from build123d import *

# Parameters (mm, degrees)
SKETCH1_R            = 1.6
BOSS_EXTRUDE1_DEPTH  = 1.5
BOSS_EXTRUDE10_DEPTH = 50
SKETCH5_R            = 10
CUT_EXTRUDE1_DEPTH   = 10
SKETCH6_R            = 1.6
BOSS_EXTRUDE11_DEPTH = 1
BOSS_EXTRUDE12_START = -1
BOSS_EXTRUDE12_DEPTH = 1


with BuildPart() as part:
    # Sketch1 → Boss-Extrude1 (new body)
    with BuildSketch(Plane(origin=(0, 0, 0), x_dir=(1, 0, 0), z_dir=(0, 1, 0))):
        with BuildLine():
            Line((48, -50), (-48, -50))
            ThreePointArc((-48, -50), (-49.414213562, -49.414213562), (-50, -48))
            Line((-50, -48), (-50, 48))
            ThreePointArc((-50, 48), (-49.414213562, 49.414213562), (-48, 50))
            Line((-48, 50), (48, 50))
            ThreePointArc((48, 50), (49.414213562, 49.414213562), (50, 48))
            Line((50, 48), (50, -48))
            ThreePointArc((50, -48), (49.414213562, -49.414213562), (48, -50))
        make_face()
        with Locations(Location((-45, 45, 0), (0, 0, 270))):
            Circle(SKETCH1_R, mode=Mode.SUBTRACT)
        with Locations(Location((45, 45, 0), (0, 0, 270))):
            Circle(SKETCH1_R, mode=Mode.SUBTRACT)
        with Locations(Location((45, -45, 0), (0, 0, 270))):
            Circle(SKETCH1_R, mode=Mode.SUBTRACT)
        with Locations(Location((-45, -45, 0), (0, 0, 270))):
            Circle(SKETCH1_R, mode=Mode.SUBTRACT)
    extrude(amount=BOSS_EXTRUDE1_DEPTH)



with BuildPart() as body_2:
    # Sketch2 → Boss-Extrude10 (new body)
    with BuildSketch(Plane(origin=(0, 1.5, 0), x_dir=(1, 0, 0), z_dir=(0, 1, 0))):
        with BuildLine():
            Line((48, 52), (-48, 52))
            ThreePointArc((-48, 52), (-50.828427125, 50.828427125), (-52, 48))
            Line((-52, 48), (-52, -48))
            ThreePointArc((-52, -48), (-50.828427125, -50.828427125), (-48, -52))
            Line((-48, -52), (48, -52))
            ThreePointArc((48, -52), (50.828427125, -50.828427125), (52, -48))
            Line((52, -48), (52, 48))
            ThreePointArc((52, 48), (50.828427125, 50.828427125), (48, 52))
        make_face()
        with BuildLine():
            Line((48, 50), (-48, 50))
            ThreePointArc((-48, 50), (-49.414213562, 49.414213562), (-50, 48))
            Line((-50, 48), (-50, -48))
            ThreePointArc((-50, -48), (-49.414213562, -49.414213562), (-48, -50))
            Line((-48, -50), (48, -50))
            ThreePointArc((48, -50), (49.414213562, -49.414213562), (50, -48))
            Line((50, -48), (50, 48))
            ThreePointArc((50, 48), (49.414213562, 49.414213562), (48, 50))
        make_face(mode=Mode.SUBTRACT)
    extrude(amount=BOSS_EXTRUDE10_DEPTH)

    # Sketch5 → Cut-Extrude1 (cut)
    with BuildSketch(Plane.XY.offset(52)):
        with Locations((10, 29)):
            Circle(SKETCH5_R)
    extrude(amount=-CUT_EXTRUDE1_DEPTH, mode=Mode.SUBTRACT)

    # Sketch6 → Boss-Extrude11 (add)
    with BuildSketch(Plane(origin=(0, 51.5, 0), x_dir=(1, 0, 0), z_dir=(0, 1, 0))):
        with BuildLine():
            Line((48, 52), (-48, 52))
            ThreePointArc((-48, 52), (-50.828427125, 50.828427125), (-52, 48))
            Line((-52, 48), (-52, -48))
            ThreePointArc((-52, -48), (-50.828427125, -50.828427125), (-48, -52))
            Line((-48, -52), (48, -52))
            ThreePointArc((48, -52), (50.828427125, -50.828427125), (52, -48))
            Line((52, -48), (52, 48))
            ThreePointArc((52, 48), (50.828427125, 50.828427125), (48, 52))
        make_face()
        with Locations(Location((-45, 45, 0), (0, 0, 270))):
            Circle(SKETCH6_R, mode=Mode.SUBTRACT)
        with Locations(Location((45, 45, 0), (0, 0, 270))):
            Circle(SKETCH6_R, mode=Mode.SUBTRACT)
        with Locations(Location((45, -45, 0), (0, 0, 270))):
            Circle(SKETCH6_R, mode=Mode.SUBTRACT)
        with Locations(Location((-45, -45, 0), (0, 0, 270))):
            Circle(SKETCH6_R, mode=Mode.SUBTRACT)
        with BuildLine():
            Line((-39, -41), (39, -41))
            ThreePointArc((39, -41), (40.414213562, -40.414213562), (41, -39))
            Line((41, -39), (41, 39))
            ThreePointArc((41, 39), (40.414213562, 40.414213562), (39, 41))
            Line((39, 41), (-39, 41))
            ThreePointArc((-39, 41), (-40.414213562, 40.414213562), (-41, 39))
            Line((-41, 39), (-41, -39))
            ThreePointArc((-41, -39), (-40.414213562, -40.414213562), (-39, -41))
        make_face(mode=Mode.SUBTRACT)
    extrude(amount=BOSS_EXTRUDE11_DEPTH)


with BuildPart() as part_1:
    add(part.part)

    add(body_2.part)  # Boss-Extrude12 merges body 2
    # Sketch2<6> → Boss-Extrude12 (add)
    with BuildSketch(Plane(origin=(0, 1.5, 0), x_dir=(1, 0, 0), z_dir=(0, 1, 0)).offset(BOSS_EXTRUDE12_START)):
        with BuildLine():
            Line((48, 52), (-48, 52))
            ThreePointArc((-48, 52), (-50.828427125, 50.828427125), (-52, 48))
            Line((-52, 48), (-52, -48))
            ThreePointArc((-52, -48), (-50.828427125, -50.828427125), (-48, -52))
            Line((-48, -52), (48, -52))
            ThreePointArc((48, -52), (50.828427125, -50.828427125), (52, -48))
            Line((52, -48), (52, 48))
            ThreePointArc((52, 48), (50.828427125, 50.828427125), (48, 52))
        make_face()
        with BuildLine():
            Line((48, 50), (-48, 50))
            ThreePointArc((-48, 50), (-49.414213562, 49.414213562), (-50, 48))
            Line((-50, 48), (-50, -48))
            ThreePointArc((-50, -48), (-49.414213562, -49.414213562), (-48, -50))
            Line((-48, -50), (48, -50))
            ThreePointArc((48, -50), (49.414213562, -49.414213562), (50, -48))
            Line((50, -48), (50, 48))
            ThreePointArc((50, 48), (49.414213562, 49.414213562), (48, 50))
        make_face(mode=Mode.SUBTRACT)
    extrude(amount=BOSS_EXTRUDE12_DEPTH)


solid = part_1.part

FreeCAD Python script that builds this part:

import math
import FreeCAD as App
import Part
import Sketcher

V = App.Vector
Q = App.Units.Quantity

doc = App.newDocument("Part")
body = doc.addObject("PartDesign::Body", "Body")

sketch1 = body.newObject("Sketcher::SketchObject", "Sketch")
sketch1.AttachmentSupport = (doc.getObject("XZ_Plane"), [""])
sketch1.MapMode = "FlatFace"
sketch1.addGeometry(Part.LineSegment(V(-48, 50, 0), V(48, 50, 0)), False)
sketch1.addGeometry(Part.ArcOfCircle(Part.Circle(V(48, 48, 0), V(0, 0, 1), 2), math.radians(0), math.radians(90)), False)
sketch1.addGeometry(Part.LineSegment(V(50, 48, 0), V(50, -48, 0)), False)
sketch1.addGeometry(Part.ArcOfCircle(Part.Circle(V(48, -48, 0), V(0, 0, 1), 2), math.radians(-90), math.radians(0)), False)
sketch1.addGeometry(Part.LineSegment(V(48, -50, 0), V(-48, -50, 0)), False)
sketch1.addGeometry(Part.ArcOfCircle(Part.Circle(V(-48, -48, 0), V(0, 0, 1), 2), math.radians(-180), math.radians(-90)), False)
sketch1.addGeometry(Part.LineSegment(V(-50, -48, 0), V(-50, 48, 0)), False)
sketch1.addGeometry(Part.ArcOfCircle(Part.Circle(V(-48, 48, 0), V(0, 0, 1), 2), math.radians(90), math.radians(180)), False)
sketch1.addGeometry(Part.Circle(V(45, 45, 0), V(0, 0, 1), 1.6), False)
sketch1.addGeometry(Part.Circle(V(-45, 45, 0), V(0, 0, 1), 1.6), False)
sketch1.addGeometry(Part.Circle(V(45, -45, 0), V(0, 0, 1), 1.6), False)
sketch1.addGeometry(Part.Circle(V(-45, -45, 0), V(0, 0, 1), 1.6), False)
sketch1.addConstraint(Sketcher.Constraint("Tangent", 0, 2, 1, 2))
sketch1.addConstraint(Sketcher.Constraint("Tangent", 1, 1, 2, 1))
sketch1.addConstraint(Sketcher.Constraint("Tangent", 2, 2, 3, 2))
sketch1.addConstraint(Sketcher.Constraint("Tangent", 3, 1, 4, 1))
sketch1.addConstraint(Sketcher.Constraint("Tangent", 4, 2, 5, 2))
sketch1.addConstraint(Sketcher.Constraint("Tangent", 5, 1, 6, 1))
sketch1.addConstraint(Sketcher.Constraint("Tangent", 6, 2, 7, 2))
sketch1.addConstraint(Sketcher.Constraint("Tangent", 7, 1, 0, 1))
sketch1.addConstraint(Sketcher.Constraint("Horizontal", 0))
sketch1.addConstraint(Sketcher.Constraint("Vertical", 2))
sketch1.addConstraint(Sketcher.Constraint("Horizontal", 4))
sketch1.addConstraint(Sketcher.Constraint("Vertical", 6))
sketch1.addConstraint(Sketcher.Constraint("Equal", 1, 3))
sketch1.addConstraint(Sketcher.Constraint("Equal", 3, 5))
sketch1.addConstraint(Sketcher.Constraint("Equal", 5, 7))
sketch1.addConstraint(Sketcher.Constraint("Equal", 8, 9))
sketch1.addConstraint(Sketcher.Constraint("Equal", 9, 10))
sketch1.addConstraint(Sketcher.Constraint("Equal", 10, 11))
sketch1.addConstraint(Sketcher.Constraint("Symmetric", 1, 3, 5, 3, -1, 1))
sketch1.addConstraint(Sketcher.Constraint("Symmetric", 9, 3, 10, 3, -1, 1))
sketch1.addConstraint(Sketcher.Constraint("Symmetric", 8, 3, 11, 3, -1, 1))
sketch1.addConstraint(Sketcher.Constraint("Symmetric", 8, 3, 9, 3, -2))
sketch1.addConstraint(Sketcher.Constraint("Equal", 4, 2))
sketch1.addConstraint(Sketcher.Constraint("Radius", 1, Q("2 mm")))
sketch1.addConstraint(Sketcher.Constraint("Diameter", 8, Q("3.2 mm")))
sketch1.addConstraint(Sketcher.Constraint("DistanceX", 0, 1, 0, 2, Q("96 mm")))
sketch1.addConstraint(Sketcher.Constraint("DistanceX", -1, 1, 8, 3, Q("45 mm")))
sketch1.addConstraint(Sketcher.Constraint("DistanceY", -1, 1, 8, 3, Q("45 mm")))
pad1 = body.newObject("PartDesign::Pad", "Pad")
pad1.Profile = sketch1
pad1.Length = 1.5
pad1.Reversed = True
body2 = doc.addObject("PartDesign::Body", "Body001")

sketch2 = body2.newObject("Sketcher::SketchObject", "Sketch001")
sketch2.AttachmentSupport = (doc.getObject("XZ_Plane001"), [""])
sketch2.MapMode = "FlatFace"
sketch2.AttachmentOffset = App.Placement(V(0, 0, -1.5), App.Rotation())
sketch2.addGeometry(Part.LineSegment(V(48, -52, 0), V(-48, -52, 0)), False)
sketch2.addGeometry(Part.ArcOfCircle(Part.Circle(V(-48, -48, 0), V(0, 0, 1), 4), math.radians(180), math.radians(270)), False)
sketch2.addGeometry(Part.LineSegment(V(-52, -48, 0), V(-52, 48, 0)), False)
sketch2.addGeometry(Part.ArcOfCircle(Part.Circle(V(-48, 48, 0), V(0, 0, 1), 4), math.radians(90), math.radians(180)), False)
sketch2.addGeometry(Part.LineSegment(V(-48, 52, 0), V(48, 52, 0)), False)
sketch2.addGeometry(Part.ArcOfCircle(Part.Circle(V(48, 48, 0), V(0, 0, 1), 4), math.radians(0), math.radians(90)), False)
sketch2.addGeometry(Part.LineSegment(V(52, 48, 0), V(52, -48, 0)), False)
sketch2.addGeometry(Part.ArcOfCircle(Part.Circle(V(48, -48, 0), V(0, 0, 1), 4), math.radians(-90), math.radians(0)), False)
sketch2.addGeometry(Part.LineSegment(V(-48, -50, 0), V(48, -50, 0)), False)
sketch2.addGeometry(Part.ArcOfCircle(Part.Circle(V(48, -48, 0), V(0, 0, 1), 2), math.radians(-90), math.radians(0)), False)
sketch2.addGeometry(Part.LineSegment(V(50, -48, 0), V(50, 48, 0)), False)
sketch2.addGeometry(Part.ArcOfCircle(Part.Circle(V(48, 48, 0), V(0, 0, 1), 2), math.radians(0), math.radians(90)), False)
sketch2.addGeometry(Part.LineSegment(V(48, 50, 0), V(-48, 50, 0)), False)
sketch2.addGeometry(Part.ArcOfCircle(Part.Circle(V(-48, 48, 0), V(0, 0, 1), 2), math.radians(90), math.radians(180)), False)
sketch2.addGeometry(Part.LineSegment(V(-50, 48, 0), V(-50, -48, 0)), False)
sketch2.addGeometry(Part.ArcOfCircle(Part.Circle(V(-48, -48, 0), V(0, 0, 1), 2), math.radians(-180), math.radians(-90)), False)
sketch2.addConstraint(Sketcher.Constraint("Tangent", 0, 2, 1, 2))
sketch2.addConstraint(Sketcher.Constraint("Tangent", 1, 1, 2, 1))
sketch2.addConstraint(Sketcher.Constraint("Tangent", 2, 2, 3, 2))
sketch2.addConstraint(Sketcher.Constraint("Tangent", 3, 1, 4, 1))
sketch2.addConstraint(Sketcher.Constraint("Tangent", 4, 2, 5, 2))
sketch2.addConstraint(Sketcher.Constraint("Tangent", 5, 1, 6, 1))
sketch2.addConstraint(Sketcher.Constraint("Tangent", 6, 2, 7, 2))
sketch2.addConstraint(Sketcher.Constraint("Tangent", 7, 1, 0, 1))
sketch2.addConstraint(Sketcher.Constraint("Tangent", 8, 2, 9, 1))
sketch2.addConstraint(Sketcher.Constraint("Tangent", 9, 2, 10, 1))
sketch2.addConstraint(Sketcher.Constraint("Tangent", 10, 2, 11, 1))
sketch2.addConstraint(Sketcher.Constraint("Tangent", 11, 2, 12, 1))
sketch2.addConstraint(Sketcher.Constraint("Tangent", 12, 2, 13, 1))
sketch2.addConstraint(Sketcher.Constraint("Tangent", 13, 2, 14, 1))
sketch2.addConstraint(Sketcher.Constraint("Tangent", 14, 2, 15, 1))
sketch2.addConstraint(Sketcher.Constraint("Tangent", 15, 2, 8, 1))
sketch2.addConstraint(Sketcher.Constraint("Horizontal", 0))
sketch2.addConstraint(Sketcher.Constraint("Vertical", 2))
sketch2.addConstraint(Sketcher.Constraint("Horizontal", 4))
sketch2.addConstraint(Sketcher.Constraint("Vertical", 6))
sketch2.addConstraint(Sketcher.Constraint("Horizontal", 8))
sketch2.addConstraint(Sketcher.Constraint("Vertical", 10))
sketch2.addConstraint(Sketcher.Constraint("Horizontal", 12))
sketch2.addConstraint(Sketcher.Constraint("Vertical", 14))
sketch2.addConstraint(Sketcher.Constraint("Coincident", 9, 3, 7, 3))
sketch2.addConstraint(Sketcher.Constraint("Coincident", 11, 3, 5, 3))
sketch2.addConstraint(Sketcher.Constraint("Coincident", 13, 3, 3, 3))
sketch2.addConstraint(Sketcher.Constraint("Equal", 1, 3))
sketch2.addConstraint(Sketcher.Constraint("Equal", 3, 5))
sketch2.addConstraint(Sketcher.Constraint("Equal", 5, 7))
sketch2.addConstraint(Sketcher.Constraint("Equal", 13, 15))
sketch2.addConstraint(Sketcher.Constraint("Symmetric", 1, 3, 5, 3, -1, 1))
sketch2.addConstraint(Sketcher.Constraint("Equal", 12, 2))
sketch2.addConstraint(Sketcher.Constraint("Radius", 1, Q("4 mm")))
sketch2.addConstraint(Sketcher.Constraint("Radius", 9, Q("2 mm")))
sketch2.addConstraint(Sketcher.Constraint("DistanceX", 0, 2, 0, 1, Q("96 mm")))
pad2 = body2.newObject("PartDesign::Pad", "Pad001")
pad2.Profile = sketch2
pad2.Length = 50
pad2.Reversed = True

sketch3 = body2.newObject("Sketcher::SketchObject", "Sketch002")
sketch3.AttachmentSupport = (doc.getObject("XY_Plane001"), [""])
sketch3.MapMode = "FlatFace"
sketch3.AttachmentOffset = App.Placement(V(0, 0, 52), App.Rotation())
sketch3.addGeometry(Part.Circle(V(10, 29, 0), V(0, 0, 1), 10), False)
sketch3.addConstraint(Sketcher.Constraint("Diameter", 0, Q("20 mm")))
sketch3.addConstraint(Sketcher.Constraint("DistanceX", -1, 1, 0, 3, Q("10 mm")))
sketch3.addConstraint(Sketcher.Constraint("DistanceY", -1, 1, 0, 3, Q("29 mm")))
pocket1 = body2.newObject("PartDesign::Pocket", "Pocket")
pocket1.Profile = sketch3
pocket1.Length = 10

sketch4 = body2.newObject("Sketcher::SketchObject", "Sketch003")
sketch4.AttachmentSupport = (doc.getObject("XZ_Plane001"), [""])
sketch4.MapMode = "FlatFace"
sketch4.AttachmentOffset = App.Placement(V(0, 0, -51.5), App.Rotation())
sketch4.addGeometry(Part.LineSegment(V(48, -52, 0), V(-48, -52, 0)), False)
sketch4.addGeometry(Part.ArcOfCircle(Part.Circle(V(-48, -48, 0), V(0, 0, 1), 4), math.radians(180), math.radians(270)), False)
sketch4.addGeometry(Part.LineSegment(V(-52, -48, 0), V(-52, 48, 0)), False)
sketch4.addGeometry(Part.ArcOfCircle(Part.Circle(V(-48, 48, 0), V(0, 0, 1), 4), math.radians(90), math.radians(180)), False)
sketch4.addGeometry(Part.LineSegment(V(-48, 52, 0), V(48, 52, 0)), False)
sketch4.addGeometry(Part.ArcOfCircle(Part.Circle(V(48, 48, 0), V(0, 0, 1), 4), math.radians(0), math.radians(90)), False)
sketch4.addGeometry(Part.LineSegment(V(52, 48, 0), V(52, -48, 0)), False)
sketch4.addGeometry(Part.ArcOfCircle(Part.Circle(V(48, -48, 0), V(0, 0, 1), 4), math.radians(-90), math.radians(0)), False)
sketch4.addGeometry(Part.Circle(V(-45, 45, 0), V(0, 0, 1), 1.6), False)
sketch4.addGeometry(Part.Circle(V(45, 45, 0), V(0, 0, 1), 1.6), False)
sketch4.addGeometry(Part.Circle(V(-45, -45, 0), V(0, 0, 1), 1.6), False)
sketch4.addGeometry(Part.LineSegment(V(39, 41, 0), V(-39, 41, 0)), False)
sketch4.addGeometry(Part.ArcOfCircle(Part.Circle(V(-39, 39, 0), V(0, 0, 1), 2), math.radians(90), math.radians(180)), False)
sketch4.addGeometry(Part.LineSegment(V(-41, 39, 0), V(-41, -39, 0)), False)
sketch4.addGeometry(Part.ArcOfCircle(Part.Circle(V(-39, -39, 0), V(0, 0, 1), 2), math.radians(-180), math.radians(-90)), False)
sketch4.addGeometry(Part.LineSegment(V(-39, -41, 0), V(39, -41, 0)), False)
sketch4.addGeometry(Part.ArcOfCircle(Part.Circle(V(39, -39, 0), V(0, 0, 1), 2), math.radians(-90), math.radians(0)), False)
sketch4.addGeometry(Part.LineSegment(V(41, -39, 0), V(41, 39, 0)), False)
sketch4.addGeometry(Part.ArcOfCircle(Part.Circle(V(39, 39, 0), V(0, 0, 1), 2), math.radians(0), math.radians(90)), False)
sketch4.addGeometry(Part.Circle(V(45, -45, 0), V(0, 0, 1), 1.6), False)
sketch4.addConstraint(Sketcher.Constraint("Tangent", 0, 2, 1, 2))
sketch4.addConstraint(Sketcher.Constraint("Tangent", 1, 1, 2, 1))
sketch4.addConstraint(Sketcher.Constraint("Tangent", 2, 2, 3, 2))
sketch4.addConstraint(Sketcher.Constraint("Tangent", 3, 1, 4, 1))
sketch4.addConstraint(Sketcher.Constraint("Tangent", 4, 2, 5, 2))
sketch4.addConstraint(Sketcher.Constraint("Tangent", 5, 1, 6, 1))
sketch4.addConstraint(Sketcher.Constraint("Tangent", 6, 2, 7, 2))
sketch4.addConstraint(Sketcher.Constraint("Tangent", 7, 1, 0, 1))
sketch4.addConstraint(Sketcher.Constraint("Tangent", 11, 2, 12, 1))
sketch4.addConstraint(Sketcher.Constraint("Tangent", 12, 2, 13, 1))
sketch4.addConstraint(Sketcher.Constraint("Tangent", 13, 2, 14, 1))
sketch4.addConstraint(Sketcher.Constraint("Tangent", 14, 2, 15, 1))
sketch4.addConstraint(Sketcher.Constraint("Tangent", 15, 2, 16, 1))
sketch4.addConstraint(Sketcher.Constraint("Tangent", 16, 2, 17, 1))
sketch4.addConstraint(Sketcher.Constraint("Tangent", 17, 2, 18, 1))
sketch4.addConstraint(Sketcher.Constraint("Tangent", 18, 2, 11, 1))
sketch4.addConstraint(Sketcher.Constraint("Horizontal", 0))
sketch4.addConstraint(Sketcher.Constraint("Vertical", 2))
sketch4.addConstraint(Sketcher.Constraint("Horizontal", 4))
sketch4.addConstraint(Sketcher.Constraint("Vertical", 6))
sketch4.addConstraint(Sketcher.Constraint("Horizontal", 11))
sketch4.addConstraint(Sketcher.Constraint("Vertical", 13))
sketch4.addConstraint(Sketcher.Constraint("Horizontal", 15))
sketch4.addConstraint(Sketcher.Constraint("Vertical", 17))
sketch4.addConstraint(Sketcher.Constraint("Equal", 1, 3))
sketch4.addConstraint(Sketcher.Constraint("Equal", 3, 5))
sketch4.addConstraint(Sketcher.Constraint("Equal", 5, 7))
sketch4.addConstraint(Sketcher.Constraint("Equal", 8, 9))
sketch4.addConstraint(Sketcher.Constraint("Equal", 9, 10))
sketch4.addConstraint(Sketcher.Constraint("Equal", 12, 14))
sketch4.addConstraint(Sketcher.Constraint("Equal", 14, 16))
sketch4.addConstraint(Sketcher.Constraint("Equal", 16, 18))
sketch4.addConstraint(Sketcher.Constraint("Equal", 10, 19))
sketch4.addConstraint(Sketcher.Constraint("Symmetric", 1, 3, 5, 3, -1, 1))
sketch4.addConstraint(Sketcher.Constraint("Symmetric", 9, 3, 10, 3, -1, 1))
sketch4.addConstraint(Sketcher.Constraint("Symmetric", 12, 3, 16, 3, -1, 1))
sketch4.addConstraint(Sketcher.Constraint("Symmetric", 8, 3, 19, 3, -1, 1))
sketch4.addConstraint(Sketcher.Constraint("Symmetric", 8, 3, 9, 3, -2))
sketch4.addConstraint(Sketcher.Constraint("Equal", 4, 2))
sketch4.addConstraint(Sketcher.Constraint("Equal", 15, 13))
sketch4.addConstraint(Sketcher.Constraint("Radius", 1, Q("4 mm")))
sketch4.addConstraint(Sketcher.Constraint("Radius", 12, Q("2 mm")))
sketch4.addConstraint(Sketcher.Constraint("Diameter", 8, Q("3.2 mm")))
sketch4.addConstraint(Sketcher.Constraint("DistanceX", 0, 2, 0, 1, Q("96 mm")))
sketch4.addConstraint(Sketcher.Constraint("DistanceX", 11, 2, 11, 1, Q("78 mm")))
sketch4.addConstraint(Sketcher.Constraint("DistanceX", 8, 3, -1, 1, Q("45 mm")))
sketch4.addConstraint(Sketcher.Constraint("DistanceY", -1, 1, 8, 3, Q("45 mm")))
pad3 = body2.newObject("PartDesign::Pad", "Pad002")
pad3.Profile = sketch4
pad3.Length = 1
pad3.Reversed = True
body.AllowCompound = True
doc.recompute()

boolean = body.newObject("PartDesign::Boolean", "Boolean")
boolean.Type = "Fuse"
boolean.addObjects([body2])

sketch5 = body.newObject("Sketcher::SketchObject", "Sketch004")
sketch5.AttachmentSupport = (doc.getObject("XZ_Plane"), [""])
sketch5.MapMode = "FlatFace"
sketch5.AttachmentOffset = App.Placement(V(0, 0, -0.5), App.Rotation())
sketch5.addGeometry(Part.LineSegment(V(48, -52, 0), V(-48, -52, 0)), False)
sketch5.addGeometry(Part.ArcOfCircle(Part.Circle(V(-48, -48, 0), V(0, 0, 1), 4), math.radians(180), math.radians(270)), False)
sketch5.addGeometry(Part.LineSegment(V(-52, -48, 0), V(-52, 48, 0)), False)
sketch5.addGeometry(Part.ArcOfCircle(Part.Circle(V(-48, 48, 0), V(0, 0, 1), 4), math.radians(90), math.radians(180)), False)
sketch5.addGeometry(Part.LineSegment(V(-48, 52, 0), V(48, 52, 0)), False)
sketch5.addGeometry(Part.ArcOfCircle(Part.Circle(V(48, 48, 0), V(0, 0, 1), 4), math.radians(0), math.radians(90)), False)
sketch5.addGeometry(Part.LineSegment(V(52, 48, 0), V(52, -48, 0)), False)
sketch5.addGeometry(Part.ArcOfCircle(Part.Circle(V(48, -48, 0), V(0, 0, 1), 4), math.radians(-90), math.radians(0)), False)
sketch5.addGeometry(Part.LineSegment(V(-48, -50, 0), V(48, -50, 0)), False)
sketch5.addGeometry(Part.ArcOfCircle(Part.Circle(V(48, -48, 0), V(0, 0, 1), 2), math.radians(-90), math.radians(0)), False)
sketch5.addGeometry(Part.LineSegment(V(50, -48, 0), V(50, 48, 0)), False)
sketch5.addGeometry(Part.ArcOfCircle(Part.Circle(V(48, 48, 0), V(0, 0, 1), 2), math.radians(0), math.radians(90)), False)
sketch5.addGeometry(Part.LineSegment(V(48, 50, 0), V(-48, 50, 0)), False)
sketch5.addGeometry(Part.ArcOfCircle(Part.Circle(V(-48, 48, 0), V(0, 0, 1), 2), math.radians(90), math.radians(180)), False)
sketch5.addGeometry(Part.LineSegment(V(-50, 48, 0), V(-50, -48, 0)), False)
sketch5.addGeometry(Part.ArcOfCircle(Part.Circle(V(-48, -48, 0), V(0, 0, 1), 2), math.radians(-180), math.radians(-90)), False)
sketch5.addConstraint(Sketcher.Constraint("Tangent", 0, 2, 1, 2))
sketch5.addConstraint(Sketcher.Constraint("Tangent", 1, 1, 2, 1))
sketch5.addConstraint(Sketcher.Constraint("Tangent", 2, 2, 3, 2))
sketch5.addConstraint(Sketcher.Constraint("Tangent", 3, 1, 4, 1))
sketch5.addConstraint(Sketcher.Constraint("Tangent", 4, 2, 5, 2))
sketch5.addConstraint(Sketcher.Constraint("Tangent", 5, 1, 6, 1))
sketch5.addConstraint(Sketcher.Constraint("Tangent", 6, 2, 7, 2))
sketch5.addConstraint(Sketcher.Constraint("Tangent", 7, 1, 0, 1))
sketch5.addConstraint(Sketcher.Constraint("Tangent", 8, 2, 9, 1))
sketch5.addConstraint(Sketcher.Constraint("Tangent", 9, 2, 10, 1))
sketch5.addConstraint(Sketcher.Constraint("Tangent", 10, 2, 11, 1))
sketch5.addConstraint(Sketcher.Constraint("Tangent", 11, 2, 12, 1))
sketch5.addConstraint(Sketcher.Constraint("Tangent", 12, 2, 13, 1))
sketch5.addConstraint(Sketcher.Constraint("Tangent", 13, 2, 14, 1))
sketch5.addConstraint(Sketcher.Constraint("Tangent", 14, 2, 15, 1))
sketch5.addConstraint(Sketcher.Constraint("Tangent", 15, 2, 8, 1))
sketch5.addConstraint(Sketcher.Constraint("Horizontal", 0))
sketch5.addConstraint(Sketcher.Constraint("Vertical", 2))
sketch5.addConstraint(Sketcher.Constraint("Horizontal", 4))
sketch5.addConstraint(Sketcher.Constraint("Vertical", 6))
sketch5.addConstraint(Sketcher.Constraint("Horizontal", 8))
sketch5.addConstraint(Sketcher.Constraint("Vertical", 10))
sketch5.addConstraint(Sketcher.Constraint("Horizontal", 12))
sketch5.addConstraint(Sketcher.Constraint("Vertical", 14))
sketch5.addConstraint(Sketcher.Constraint("Coincident", 9, 3, 7, 3))
sketch5.addConstraint(Sketcher.Constraint("Coincident", 11, 3, 5, 3))
sketch5.addConstraint(Sketcher.Constraint("Coincident", 13, 3, 3, 3))
sketch5.addConstraint(Sketcher.Constraint("Equal", 1, 3))
sketch5.addConstraint(Sketcher.Constraint("Equal", 3, 5))
sketch5.addConstraint(Sketcher.Constraint("Equal", 5, 7))
sketch5.addConstraint(Sketcher.Constraint("Equal", 13, 15))
sketch5.addConstraint(Sketcher.Constraint("Symmetric", 1, 3, 5, 3, -1, 1))
sketch5.addConstraint(Sketcher.Constraint("Equal", 12, 2))
sketch5.addConstraint(Sketcher.Constraint("Radius", 1, Q("4 mm")))
sketch5.addConstraint(Sketcher.Constraint("Radius", 9, Q("2 mm")))
sketch5.addConstraint(Sketcher.Constraint("DistanceX", 0, 2, 0, 1, Q("96 mm")))
pad4 = body.newObject("PartDesign::Pad", "Pad003")
pad4.Profile = sketch5
pad4.Length = 1
pad4.Reversed = True

doc.recompute()
